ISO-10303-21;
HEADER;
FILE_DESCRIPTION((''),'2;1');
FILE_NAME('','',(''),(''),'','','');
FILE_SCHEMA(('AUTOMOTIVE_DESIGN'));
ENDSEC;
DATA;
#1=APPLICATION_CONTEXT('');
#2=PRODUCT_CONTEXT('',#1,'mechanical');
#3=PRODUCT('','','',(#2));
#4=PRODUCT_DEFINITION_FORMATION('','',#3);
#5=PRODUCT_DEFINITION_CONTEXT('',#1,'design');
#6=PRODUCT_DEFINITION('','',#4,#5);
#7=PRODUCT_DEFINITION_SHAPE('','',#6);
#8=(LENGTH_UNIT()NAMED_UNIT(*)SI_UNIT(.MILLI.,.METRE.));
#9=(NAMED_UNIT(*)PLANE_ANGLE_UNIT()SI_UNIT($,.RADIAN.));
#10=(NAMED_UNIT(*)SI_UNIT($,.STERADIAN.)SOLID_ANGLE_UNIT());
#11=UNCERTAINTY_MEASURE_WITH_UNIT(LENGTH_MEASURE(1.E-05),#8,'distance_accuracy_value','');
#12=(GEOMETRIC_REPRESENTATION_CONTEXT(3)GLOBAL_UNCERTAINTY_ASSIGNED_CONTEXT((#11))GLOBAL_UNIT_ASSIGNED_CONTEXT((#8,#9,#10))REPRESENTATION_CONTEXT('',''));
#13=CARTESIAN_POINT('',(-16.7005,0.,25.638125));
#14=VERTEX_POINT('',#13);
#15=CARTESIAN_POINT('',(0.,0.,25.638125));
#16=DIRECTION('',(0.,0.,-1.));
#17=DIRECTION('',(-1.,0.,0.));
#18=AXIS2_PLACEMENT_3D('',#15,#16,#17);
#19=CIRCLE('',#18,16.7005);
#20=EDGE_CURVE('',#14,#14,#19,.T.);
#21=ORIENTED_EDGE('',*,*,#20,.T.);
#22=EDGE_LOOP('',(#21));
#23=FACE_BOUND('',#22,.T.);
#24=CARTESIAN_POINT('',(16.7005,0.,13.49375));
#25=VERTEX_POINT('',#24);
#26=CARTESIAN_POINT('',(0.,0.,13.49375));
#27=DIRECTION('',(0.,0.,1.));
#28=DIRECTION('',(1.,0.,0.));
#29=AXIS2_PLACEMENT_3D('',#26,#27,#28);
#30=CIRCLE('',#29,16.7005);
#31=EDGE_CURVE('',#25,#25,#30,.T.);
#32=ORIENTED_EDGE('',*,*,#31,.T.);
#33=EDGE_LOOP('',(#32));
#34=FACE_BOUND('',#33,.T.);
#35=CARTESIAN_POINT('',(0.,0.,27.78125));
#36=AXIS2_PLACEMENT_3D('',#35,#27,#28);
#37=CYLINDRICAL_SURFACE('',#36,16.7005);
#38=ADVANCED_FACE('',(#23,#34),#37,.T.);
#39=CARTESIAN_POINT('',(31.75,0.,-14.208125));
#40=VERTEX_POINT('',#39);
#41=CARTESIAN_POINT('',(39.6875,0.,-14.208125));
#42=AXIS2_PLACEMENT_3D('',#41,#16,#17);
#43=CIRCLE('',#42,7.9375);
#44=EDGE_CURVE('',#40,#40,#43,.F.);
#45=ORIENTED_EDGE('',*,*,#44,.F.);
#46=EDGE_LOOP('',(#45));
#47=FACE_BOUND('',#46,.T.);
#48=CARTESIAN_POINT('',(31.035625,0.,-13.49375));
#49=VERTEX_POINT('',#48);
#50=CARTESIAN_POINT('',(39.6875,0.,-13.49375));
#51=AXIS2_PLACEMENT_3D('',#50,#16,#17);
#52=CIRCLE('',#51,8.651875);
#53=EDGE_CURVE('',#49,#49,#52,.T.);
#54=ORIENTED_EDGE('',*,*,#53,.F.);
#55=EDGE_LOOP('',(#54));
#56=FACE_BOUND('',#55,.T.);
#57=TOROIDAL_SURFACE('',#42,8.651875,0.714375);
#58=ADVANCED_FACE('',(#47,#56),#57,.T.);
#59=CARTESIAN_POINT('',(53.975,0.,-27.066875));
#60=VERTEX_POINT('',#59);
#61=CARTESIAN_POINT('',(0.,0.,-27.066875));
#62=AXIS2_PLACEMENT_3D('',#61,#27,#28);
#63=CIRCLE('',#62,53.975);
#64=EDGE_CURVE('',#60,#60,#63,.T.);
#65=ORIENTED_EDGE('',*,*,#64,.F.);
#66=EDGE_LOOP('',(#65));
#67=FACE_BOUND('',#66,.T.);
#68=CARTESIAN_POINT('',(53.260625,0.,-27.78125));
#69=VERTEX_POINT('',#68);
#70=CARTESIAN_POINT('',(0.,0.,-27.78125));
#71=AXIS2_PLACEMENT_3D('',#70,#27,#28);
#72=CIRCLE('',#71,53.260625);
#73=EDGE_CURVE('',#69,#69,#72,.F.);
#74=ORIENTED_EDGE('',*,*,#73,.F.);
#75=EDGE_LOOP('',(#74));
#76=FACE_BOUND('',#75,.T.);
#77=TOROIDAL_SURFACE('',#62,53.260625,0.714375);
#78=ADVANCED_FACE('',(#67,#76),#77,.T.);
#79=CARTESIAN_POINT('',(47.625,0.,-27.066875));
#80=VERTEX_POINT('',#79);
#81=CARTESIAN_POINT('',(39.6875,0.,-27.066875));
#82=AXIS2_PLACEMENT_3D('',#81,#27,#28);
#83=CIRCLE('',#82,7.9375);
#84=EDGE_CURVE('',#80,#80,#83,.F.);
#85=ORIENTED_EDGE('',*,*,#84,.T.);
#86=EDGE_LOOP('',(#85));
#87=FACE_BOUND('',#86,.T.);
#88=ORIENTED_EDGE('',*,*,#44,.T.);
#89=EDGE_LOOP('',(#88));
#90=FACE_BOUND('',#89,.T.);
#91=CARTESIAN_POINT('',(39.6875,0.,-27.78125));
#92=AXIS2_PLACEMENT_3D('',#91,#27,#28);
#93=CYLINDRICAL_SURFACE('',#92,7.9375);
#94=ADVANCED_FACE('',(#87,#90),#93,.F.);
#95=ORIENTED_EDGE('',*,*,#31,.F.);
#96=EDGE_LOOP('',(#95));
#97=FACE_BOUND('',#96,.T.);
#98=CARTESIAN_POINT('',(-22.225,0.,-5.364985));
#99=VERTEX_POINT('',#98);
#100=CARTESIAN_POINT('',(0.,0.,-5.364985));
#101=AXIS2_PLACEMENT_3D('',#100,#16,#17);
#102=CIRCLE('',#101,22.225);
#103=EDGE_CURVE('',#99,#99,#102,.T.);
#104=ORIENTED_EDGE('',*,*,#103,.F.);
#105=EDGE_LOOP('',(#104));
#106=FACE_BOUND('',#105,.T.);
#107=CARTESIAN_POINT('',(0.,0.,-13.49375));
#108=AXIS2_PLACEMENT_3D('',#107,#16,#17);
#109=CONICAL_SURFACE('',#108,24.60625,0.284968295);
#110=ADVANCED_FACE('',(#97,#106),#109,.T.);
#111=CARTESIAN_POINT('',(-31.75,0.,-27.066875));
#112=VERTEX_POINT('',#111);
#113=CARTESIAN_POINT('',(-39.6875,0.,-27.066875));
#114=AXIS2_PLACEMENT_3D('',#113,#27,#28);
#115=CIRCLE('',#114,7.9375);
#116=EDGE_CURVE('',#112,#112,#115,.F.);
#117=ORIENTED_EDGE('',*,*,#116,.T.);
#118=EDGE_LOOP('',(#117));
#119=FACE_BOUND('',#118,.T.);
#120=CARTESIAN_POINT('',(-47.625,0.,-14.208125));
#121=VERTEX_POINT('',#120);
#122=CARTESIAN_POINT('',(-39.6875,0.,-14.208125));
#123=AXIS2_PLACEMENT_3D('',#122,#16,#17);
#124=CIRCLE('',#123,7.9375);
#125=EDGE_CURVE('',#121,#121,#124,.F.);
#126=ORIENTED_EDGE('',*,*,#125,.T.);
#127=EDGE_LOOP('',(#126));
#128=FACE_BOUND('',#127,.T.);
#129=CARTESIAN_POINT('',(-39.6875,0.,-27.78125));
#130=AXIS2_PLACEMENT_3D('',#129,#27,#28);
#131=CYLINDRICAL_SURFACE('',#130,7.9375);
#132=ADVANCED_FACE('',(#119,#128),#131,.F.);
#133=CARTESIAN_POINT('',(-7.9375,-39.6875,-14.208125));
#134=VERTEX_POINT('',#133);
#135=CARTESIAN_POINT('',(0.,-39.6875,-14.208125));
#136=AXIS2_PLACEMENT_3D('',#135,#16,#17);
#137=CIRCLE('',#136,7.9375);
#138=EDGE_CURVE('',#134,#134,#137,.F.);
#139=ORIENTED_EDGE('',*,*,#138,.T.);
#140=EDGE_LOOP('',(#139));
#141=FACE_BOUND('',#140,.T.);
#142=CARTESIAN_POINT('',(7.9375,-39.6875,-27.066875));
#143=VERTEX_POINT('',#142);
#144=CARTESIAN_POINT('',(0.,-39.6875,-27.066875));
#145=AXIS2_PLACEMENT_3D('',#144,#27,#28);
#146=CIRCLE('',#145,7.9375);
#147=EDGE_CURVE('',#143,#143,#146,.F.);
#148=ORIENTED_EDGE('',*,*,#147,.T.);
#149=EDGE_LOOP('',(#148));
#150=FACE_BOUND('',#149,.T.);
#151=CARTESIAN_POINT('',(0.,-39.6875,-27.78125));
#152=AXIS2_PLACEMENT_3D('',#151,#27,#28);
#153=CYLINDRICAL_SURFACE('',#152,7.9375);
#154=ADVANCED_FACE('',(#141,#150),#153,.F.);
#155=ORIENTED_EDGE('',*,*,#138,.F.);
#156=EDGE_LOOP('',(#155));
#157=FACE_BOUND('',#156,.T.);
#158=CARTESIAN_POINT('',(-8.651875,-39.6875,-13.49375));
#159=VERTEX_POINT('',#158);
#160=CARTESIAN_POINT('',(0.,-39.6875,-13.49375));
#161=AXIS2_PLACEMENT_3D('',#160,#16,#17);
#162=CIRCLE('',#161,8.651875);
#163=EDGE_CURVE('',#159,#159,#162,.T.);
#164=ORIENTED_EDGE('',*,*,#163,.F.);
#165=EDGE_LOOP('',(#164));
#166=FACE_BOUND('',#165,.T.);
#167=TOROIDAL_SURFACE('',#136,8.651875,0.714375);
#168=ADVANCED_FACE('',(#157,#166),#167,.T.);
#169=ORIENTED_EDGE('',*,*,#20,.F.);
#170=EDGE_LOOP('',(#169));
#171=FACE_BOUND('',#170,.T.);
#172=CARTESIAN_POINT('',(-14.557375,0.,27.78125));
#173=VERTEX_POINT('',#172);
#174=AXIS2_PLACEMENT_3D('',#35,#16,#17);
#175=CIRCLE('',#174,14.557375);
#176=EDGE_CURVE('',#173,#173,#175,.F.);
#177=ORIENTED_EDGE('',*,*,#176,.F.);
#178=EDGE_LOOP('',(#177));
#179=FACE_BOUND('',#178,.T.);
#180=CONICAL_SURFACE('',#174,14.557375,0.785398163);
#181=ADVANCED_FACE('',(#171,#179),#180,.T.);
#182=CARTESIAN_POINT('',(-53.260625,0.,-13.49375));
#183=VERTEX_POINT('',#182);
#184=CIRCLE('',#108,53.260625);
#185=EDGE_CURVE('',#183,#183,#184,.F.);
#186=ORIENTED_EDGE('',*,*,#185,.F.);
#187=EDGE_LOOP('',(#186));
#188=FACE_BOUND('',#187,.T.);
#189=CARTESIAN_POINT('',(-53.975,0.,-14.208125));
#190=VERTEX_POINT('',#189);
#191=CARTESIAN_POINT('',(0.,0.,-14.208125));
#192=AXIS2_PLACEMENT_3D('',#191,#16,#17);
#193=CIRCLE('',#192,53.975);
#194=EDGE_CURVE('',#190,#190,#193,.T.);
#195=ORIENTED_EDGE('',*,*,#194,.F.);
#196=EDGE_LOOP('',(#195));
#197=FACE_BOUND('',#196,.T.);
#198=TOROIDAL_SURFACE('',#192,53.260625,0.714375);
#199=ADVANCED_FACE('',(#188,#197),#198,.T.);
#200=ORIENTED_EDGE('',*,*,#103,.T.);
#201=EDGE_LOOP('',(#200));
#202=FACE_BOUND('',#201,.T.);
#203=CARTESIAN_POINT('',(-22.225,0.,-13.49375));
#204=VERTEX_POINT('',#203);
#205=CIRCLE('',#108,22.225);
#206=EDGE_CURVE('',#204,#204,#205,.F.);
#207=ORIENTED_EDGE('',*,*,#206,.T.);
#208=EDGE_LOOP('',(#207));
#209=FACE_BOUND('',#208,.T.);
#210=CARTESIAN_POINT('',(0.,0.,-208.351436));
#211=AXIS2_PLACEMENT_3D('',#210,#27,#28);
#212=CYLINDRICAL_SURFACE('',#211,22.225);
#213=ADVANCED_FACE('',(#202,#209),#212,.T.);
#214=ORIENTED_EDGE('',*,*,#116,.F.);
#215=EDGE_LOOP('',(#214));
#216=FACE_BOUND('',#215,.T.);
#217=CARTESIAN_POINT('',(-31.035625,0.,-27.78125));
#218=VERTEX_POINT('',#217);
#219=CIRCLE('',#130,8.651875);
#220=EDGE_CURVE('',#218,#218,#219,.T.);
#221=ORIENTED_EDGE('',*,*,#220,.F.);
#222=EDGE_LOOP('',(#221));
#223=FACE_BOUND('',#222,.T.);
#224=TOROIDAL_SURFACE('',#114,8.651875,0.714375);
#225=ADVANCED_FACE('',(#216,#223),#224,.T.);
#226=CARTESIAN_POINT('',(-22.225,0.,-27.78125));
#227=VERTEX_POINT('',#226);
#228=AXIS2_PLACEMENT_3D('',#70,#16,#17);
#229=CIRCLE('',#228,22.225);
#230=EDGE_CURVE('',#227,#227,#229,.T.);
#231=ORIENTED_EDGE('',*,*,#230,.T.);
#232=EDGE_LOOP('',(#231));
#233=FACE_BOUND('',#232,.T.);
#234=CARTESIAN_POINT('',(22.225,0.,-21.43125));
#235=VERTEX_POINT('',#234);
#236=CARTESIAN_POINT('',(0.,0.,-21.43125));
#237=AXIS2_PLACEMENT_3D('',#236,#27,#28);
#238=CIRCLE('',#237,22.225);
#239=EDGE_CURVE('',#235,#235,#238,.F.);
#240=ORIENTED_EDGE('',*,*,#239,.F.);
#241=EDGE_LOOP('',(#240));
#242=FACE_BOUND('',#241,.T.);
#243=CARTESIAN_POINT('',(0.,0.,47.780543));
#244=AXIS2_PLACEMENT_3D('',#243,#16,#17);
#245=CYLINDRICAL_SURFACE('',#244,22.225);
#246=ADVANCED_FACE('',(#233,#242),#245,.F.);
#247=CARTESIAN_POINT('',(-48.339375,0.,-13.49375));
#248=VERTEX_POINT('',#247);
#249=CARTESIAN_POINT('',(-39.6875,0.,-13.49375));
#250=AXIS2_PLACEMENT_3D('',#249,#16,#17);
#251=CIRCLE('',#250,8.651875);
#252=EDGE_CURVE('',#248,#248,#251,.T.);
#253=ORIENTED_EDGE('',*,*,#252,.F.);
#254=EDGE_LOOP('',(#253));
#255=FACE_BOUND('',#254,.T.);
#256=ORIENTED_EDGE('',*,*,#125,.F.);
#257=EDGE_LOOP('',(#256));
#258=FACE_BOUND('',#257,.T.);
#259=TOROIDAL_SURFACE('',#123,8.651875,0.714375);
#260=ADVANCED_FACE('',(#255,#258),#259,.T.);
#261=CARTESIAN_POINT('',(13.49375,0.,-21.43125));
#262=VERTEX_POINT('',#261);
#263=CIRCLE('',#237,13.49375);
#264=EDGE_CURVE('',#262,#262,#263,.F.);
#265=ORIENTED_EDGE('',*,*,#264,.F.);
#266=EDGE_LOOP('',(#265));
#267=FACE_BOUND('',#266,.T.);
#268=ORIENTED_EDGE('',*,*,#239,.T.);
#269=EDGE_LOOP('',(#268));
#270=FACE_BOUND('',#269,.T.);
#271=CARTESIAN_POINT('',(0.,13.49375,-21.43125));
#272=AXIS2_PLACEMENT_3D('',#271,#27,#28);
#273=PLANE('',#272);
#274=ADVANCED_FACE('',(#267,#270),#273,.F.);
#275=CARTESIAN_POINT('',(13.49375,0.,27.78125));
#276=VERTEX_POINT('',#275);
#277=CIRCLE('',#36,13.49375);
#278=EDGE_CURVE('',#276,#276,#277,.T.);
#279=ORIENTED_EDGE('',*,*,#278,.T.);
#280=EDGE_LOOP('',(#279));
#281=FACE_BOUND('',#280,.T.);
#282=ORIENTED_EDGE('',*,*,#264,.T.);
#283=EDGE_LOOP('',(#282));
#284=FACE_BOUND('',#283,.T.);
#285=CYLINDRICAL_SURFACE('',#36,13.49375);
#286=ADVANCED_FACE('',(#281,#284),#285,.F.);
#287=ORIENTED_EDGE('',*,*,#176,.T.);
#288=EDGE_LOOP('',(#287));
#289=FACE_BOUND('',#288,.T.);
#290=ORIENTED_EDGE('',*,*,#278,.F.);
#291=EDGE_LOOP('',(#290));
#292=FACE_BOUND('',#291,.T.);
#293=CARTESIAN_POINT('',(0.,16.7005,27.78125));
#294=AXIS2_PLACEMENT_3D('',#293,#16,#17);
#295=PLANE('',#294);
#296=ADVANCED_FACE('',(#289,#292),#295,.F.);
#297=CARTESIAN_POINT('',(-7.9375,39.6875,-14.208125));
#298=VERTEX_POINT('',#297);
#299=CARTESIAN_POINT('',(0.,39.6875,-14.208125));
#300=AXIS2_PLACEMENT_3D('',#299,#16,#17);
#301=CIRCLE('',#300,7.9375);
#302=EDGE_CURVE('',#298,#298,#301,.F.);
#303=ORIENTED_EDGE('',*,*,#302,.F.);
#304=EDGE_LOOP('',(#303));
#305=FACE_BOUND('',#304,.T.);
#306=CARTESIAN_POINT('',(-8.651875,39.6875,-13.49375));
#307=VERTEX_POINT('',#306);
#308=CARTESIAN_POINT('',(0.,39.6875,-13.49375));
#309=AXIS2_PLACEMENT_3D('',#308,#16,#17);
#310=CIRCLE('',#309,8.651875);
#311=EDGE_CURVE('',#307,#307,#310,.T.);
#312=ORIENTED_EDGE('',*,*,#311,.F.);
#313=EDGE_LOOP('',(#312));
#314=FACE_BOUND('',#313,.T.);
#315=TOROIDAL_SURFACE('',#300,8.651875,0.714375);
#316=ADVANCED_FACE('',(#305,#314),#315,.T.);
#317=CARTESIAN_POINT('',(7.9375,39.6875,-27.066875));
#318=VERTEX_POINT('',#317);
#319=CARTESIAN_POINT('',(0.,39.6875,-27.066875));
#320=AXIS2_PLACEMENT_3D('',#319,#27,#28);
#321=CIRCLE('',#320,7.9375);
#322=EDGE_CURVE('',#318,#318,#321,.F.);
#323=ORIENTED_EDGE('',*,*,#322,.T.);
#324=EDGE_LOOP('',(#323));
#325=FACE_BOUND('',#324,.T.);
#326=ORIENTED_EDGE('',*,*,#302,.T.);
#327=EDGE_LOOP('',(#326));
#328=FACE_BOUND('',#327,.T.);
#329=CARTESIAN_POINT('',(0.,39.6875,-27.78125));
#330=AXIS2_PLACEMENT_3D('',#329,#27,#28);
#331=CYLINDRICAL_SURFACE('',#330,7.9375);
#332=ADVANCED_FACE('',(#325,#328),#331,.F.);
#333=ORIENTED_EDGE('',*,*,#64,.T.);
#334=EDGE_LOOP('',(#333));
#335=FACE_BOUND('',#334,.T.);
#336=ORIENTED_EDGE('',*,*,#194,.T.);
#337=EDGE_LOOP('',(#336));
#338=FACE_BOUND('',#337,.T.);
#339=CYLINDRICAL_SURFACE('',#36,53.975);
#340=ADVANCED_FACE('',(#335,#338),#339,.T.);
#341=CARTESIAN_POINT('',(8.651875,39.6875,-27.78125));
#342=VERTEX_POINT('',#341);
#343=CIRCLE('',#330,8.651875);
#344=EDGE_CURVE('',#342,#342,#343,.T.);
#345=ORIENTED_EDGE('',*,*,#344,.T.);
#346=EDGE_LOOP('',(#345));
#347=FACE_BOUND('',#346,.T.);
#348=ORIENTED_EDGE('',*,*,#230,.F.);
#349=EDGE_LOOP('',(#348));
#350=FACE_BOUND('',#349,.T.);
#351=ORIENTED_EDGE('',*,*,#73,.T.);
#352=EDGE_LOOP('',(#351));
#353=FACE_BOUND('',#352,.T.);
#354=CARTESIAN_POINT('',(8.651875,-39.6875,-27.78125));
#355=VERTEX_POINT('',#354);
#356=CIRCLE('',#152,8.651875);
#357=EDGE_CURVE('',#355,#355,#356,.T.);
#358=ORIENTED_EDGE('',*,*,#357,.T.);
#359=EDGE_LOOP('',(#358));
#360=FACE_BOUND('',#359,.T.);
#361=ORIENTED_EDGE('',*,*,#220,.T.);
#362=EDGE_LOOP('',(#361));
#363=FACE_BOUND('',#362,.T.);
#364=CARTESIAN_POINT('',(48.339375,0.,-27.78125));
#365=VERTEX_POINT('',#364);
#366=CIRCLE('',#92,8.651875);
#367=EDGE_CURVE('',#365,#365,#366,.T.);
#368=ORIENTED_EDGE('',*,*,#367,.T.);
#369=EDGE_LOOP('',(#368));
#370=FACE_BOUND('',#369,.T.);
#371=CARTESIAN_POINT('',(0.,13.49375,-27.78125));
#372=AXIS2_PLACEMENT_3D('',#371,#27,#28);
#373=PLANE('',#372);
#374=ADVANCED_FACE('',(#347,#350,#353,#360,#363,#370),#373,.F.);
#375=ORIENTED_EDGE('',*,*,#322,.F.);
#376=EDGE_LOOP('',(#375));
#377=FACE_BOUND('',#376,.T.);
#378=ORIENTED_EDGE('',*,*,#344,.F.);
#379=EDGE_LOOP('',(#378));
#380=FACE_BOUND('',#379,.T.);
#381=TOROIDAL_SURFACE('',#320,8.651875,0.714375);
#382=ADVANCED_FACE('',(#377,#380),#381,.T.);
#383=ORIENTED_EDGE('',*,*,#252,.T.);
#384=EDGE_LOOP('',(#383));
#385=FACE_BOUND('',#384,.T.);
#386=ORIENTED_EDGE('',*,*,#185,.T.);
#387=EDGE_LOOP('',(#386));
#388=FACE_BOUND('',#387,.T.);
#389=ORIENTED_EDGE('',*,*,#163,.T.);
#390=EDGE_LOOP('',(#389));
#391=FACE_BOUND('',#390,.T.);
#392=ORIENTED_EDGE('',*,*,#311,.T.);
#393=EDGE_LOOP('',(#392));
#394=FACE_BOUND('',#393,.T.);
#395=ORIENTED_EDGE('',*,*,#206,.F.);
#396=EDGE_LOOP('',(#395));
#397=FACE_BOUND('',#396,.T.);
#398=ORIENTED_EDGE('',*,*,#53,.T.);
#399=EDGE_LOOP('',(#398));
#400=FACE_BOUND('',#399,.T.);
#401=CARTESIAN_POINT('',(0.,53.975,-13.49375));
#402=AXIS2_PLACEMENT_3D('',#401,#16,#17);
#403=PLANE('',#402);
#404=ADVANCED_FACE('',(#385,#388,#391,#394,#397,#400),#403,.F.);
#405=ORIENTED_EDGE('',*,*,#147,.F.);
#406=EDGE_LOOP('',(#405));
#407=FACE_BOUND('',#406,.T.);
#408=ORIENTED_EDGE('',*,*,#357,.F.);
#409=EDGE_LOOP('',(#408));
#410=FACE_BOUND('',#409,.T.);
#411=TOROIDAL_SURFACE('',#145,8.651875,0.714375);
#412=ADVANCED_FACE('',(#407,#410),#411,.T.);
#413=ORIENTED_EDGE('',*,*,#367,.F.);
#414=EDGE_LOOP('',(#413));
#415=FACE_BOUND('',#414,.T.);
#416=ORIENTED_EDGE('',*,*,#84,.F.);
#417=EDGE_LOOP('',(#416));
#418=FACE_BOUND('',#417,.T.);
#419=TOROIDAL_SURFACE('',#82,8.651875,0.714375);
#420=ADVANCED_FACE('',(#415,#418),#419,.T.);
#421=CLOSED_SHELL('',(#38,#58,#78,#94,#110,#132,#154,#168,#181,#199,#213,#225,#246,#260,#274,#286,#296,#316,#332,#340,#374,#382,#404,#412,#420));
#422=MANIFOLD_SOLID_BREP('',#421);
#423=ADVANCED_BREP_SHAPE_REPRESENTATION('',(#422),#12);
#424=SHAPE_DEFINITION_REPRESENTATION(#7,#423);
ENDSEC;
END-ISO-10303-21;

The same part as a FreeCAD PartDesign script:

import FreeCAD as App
import Part
import Sketcher
from FreeCAD import Vector
Q = App.Units.Quantity


def edges_at(feature, points):
    """Names of the edges that pass closest to the given points."""
    edges = feature.Shape.Edges
    near = lambda p: min(range(len(edges)), key=lambda i: edges[i].distToShape(Part.Vertex(*p))[0])
    return sorted({f"Edge{near(p) + 1}" for p in points})


def add_polygon(sketch, points):
    """Adds a closed chain of lines whose ends are joined by coincident constraints."""
    first, n = sketch.GeometryCount, len(points)
    for a, b in zip(points, points[1:] + points[:1]):
        sketch.addGeometry(Part.LineSegment(App.Vector(*a, 0), App.Vector(*b, 0)), False)
    for i in range(n):
        sketch.addConstraint(Sketcher.Constraint("Coincident", first + i, 2, first + (i + 1) % n, 1))

doc = App.newDocument("Part")
body = doc.addObject("PartDesign::Body", "Body")

# Sketch on YZ plane
sketch1 = doc.addObject("Sketcher::SketchObject", "Sketch")
body.addObject(sketch1)
sketch1.AttachmentSupport = (doc.YZ_Plane, [""])
sketch1.MapMode = "FlatFace"
add_polygon(sketch1, [(16.7, 27.8), (13.5, 27.8), (13.5, -27.8), (54, -27.8), (54, -13.5), (24.6, -13.5), (16.7, 13.5)])  # lines 0-6
sketch1.addConstraint(Sketcher.Constraint("Horizontal", 0))
sketch1.addConstraint(Sketcher.Constraint("Vertical", 1))
sketch1.addConstraint(Sketcher.Constraint("Horizontal", 2))
sketch1.addConstraint(Sketcher.Constraint("Vertical", 3))
sketch1.addConstraint(Sketcher.Constraint("Horizontal", 4))
sketch1.addConstraint(Sketcher.Constraint("Vertical", 6))
sketch1.addConstraint(Sketcher.Constraint("Equal", 3, 6))
sketch1.addConstraint(Sketcher.Constraint("DistanceX", 2, 1, 2, 2, Q("1.59375 in")))
sketch1.addConstraint(Sketcher.Constraint("DistanceX", 4, 2, 4, 1, Q("1.15625 in")))
sketch1.addConstraint(Sketcher.Constraint("DistanceY", 1, 2, 1, 1, Q("2.1875 in")))
sketch1.addConstraint(Sketcher.Constraint("DistanceY", 3, 1, 3, 2, Q("0.5625 in")))
sketch1.addConstraint(Sketcher.Constraint("DistanceX", -1, 1, 0, 2, Q("0.53125 in")))
sketch1.addConstraint(Sketcher.Constraint("DistanceY", -1, 1, 0, 2, Q("1.09375 in")))
sketch1.addConstraint(Sketcher.Constraint("DistanceX", -1, 1, 5, 2, Q("0.6575 in")))
revolution = doc.addObject("PartDesign::Revolution", "Revolution")
body.addObject(revolution)
revolution.Profile = sketch1
revolution.ReferenceAxis = (sketch1, ["V_Axis"])
revolution.Angle = 360

# Sketch on XY plane
sketch2 = doc.addObject("Sketcher::SketchObject", "Sketch001")
body.addObject(sketch2)
sketch2.AttachmentSupport = (doc.XY_Plane, [""])
sketch2.MapMode = "FlatFace"
sketch2.AttachmentOffset = App.Placement(Vector(0, 0, -0.53125 * 25.4), App.Rotation())
sketch2.addGeometry(Part.Circle(Vector(0, 40, 0), Vector(0, 0, 1), 8), False)
sketch2.addConstraint(Sketcher.Constraint("PointOnObject", 0, 3, -2))
sketch2.addConstraint(Sketcher.Constraint("Diameter", 0, Q("0.625 in")))
sketch2.addConstraint(Sketcher.Constraint("DistanceY", -1, 1, 0, 3, Q("1.5625 in")))
pocket1 = doc.addObject("PartDesign::Pocket", "Pocket")
body.addObject(pocket1)
pocket1.Profile = sketch2
pocket1.Type = "ThroughAll"
doc.recompute()

polarpattern = doc.addObject("PartDesign::PolarPattern", "PolarPattern")
body.addObject(polarpattern)
polarpattern.Originals = [pocket1]
polarpattern.Axis = (doc.Z_Axis, [""])
polarpattern.Angle = 360
polarpattern.Occurrences = 4
body.Tip = polarpattern
doc.recompute()

fillet = doc.addObject("PartDesign::Fillet", "Fillet")
body.addObject(fillet)
fillet.Base = (polarpattern, edges_at(polarpattern, [(-24.606, 0, -13.494)]))
fillet.Radius = Q("0.1125 in")
doc.recompute()

chamfer = doc.addObject("PartDesign::Chamfer", "Chamfer")
body.addObject(chamfer)
chamfer.Base = (fillet, edges_at(fillet, [(-16.701, 0, 27.781)]))
chamfer.Size = 2.143125
doc.recompute()

fillet2 = doc.addObject("PartDesign::Fillet", "Fillet001")
body.addObject(fillet2)
fillet2.Base = (chamfer, edges_at(chamfer, [
    (-7.938, 39.688, -27.781),
    (-7.938, 39.688, -13.494),
    (39.688, 7.938, -27.781),
    (39.688, 7.938, -13.494),
    (7.938, -39.688, -27.781),
    (7.938, -39.688, -13.494),
    (-39.688, -7.938, -27.781),
    (-39.688, -7.938, -13.494),
    (-53.975, 0, -13.494),
    (-53.975, 0, -27.781),
    (-13.494, 0, -27.781),
]))
fillet2.Radius = 0.714375

# Sketch on XY plane
sketch3 = doc.addObject("Sketcher::SketchObject", "Sketch002")
body.addObject(sketch3)
sketch3.AttachmentSupport = (doc.XY_Plane, [""])
sketch3.MapMode = "FlatFace"
sketch3.AttachmentOffset = App.Placement(Vector(0, 0, 1.09375 * 25.4), App.Rotation())
sketch3.addGeometry(Part.Circle(Vector(0, 0, 0), Vector(0, 0, 1), 69), False)
sketch3.addGeometry(Part.Circle(Vector(0, 0, 0), Vector(0, 0, 1), 22), False)
sketch3.addConstraint(Sketcher.Constraint("Coincident", 0, 3, -1, 1))
sketch3.addConstraint(Sketcher.Constraint("Coincident", 1, 3, -1, 1))
sketch3.addConstraint(Sketcher.Constraint("Diameter", 1, Q("1.75 in")))
sketch3.addConstraint(Sketcher.Constraint("Diameter", 0, 137.785191))
pocket2 = doc.addObject("PartDesign::Pocket", "Pocket001")
body.addObject(pocket2)
pocket2.Profile = sketch3
pocket2.Length = Q("1.625 in")

# Sketch on XY plane
sketch4 = doc.addObject("Sketcher::SketchObject", "Sketch003")
body.addObject(sketch4)
sketch4.AttachmentSupport = (doc.XY_Plane, [""])
sketch4.MapMode = "FlatFace"
sketch4.AttachmentOffset = App.Placement(Vector(0, 0, -0.84375 * 25.4), App.Rotation())
sketch4.addGeometry(Part.Circle(Vector(0, 0, 0), Vector(0, 0, 1), 22), False)
sketch4.addConstraint(Sketcher.Constraint("Coincident", 0, 3, -1, 1))
sketch4.addConstraint(Sketcher.Constraint("Diameter", 0, Q("1.75 in")))
pocket3 = doc.addObject("PartDesign::Pocket", "Pocket002")
body.addObject(pocket3)
pocket3.Profile = sketch4
pocket3.Length = Q("0.25 in")

doc.recompute()
